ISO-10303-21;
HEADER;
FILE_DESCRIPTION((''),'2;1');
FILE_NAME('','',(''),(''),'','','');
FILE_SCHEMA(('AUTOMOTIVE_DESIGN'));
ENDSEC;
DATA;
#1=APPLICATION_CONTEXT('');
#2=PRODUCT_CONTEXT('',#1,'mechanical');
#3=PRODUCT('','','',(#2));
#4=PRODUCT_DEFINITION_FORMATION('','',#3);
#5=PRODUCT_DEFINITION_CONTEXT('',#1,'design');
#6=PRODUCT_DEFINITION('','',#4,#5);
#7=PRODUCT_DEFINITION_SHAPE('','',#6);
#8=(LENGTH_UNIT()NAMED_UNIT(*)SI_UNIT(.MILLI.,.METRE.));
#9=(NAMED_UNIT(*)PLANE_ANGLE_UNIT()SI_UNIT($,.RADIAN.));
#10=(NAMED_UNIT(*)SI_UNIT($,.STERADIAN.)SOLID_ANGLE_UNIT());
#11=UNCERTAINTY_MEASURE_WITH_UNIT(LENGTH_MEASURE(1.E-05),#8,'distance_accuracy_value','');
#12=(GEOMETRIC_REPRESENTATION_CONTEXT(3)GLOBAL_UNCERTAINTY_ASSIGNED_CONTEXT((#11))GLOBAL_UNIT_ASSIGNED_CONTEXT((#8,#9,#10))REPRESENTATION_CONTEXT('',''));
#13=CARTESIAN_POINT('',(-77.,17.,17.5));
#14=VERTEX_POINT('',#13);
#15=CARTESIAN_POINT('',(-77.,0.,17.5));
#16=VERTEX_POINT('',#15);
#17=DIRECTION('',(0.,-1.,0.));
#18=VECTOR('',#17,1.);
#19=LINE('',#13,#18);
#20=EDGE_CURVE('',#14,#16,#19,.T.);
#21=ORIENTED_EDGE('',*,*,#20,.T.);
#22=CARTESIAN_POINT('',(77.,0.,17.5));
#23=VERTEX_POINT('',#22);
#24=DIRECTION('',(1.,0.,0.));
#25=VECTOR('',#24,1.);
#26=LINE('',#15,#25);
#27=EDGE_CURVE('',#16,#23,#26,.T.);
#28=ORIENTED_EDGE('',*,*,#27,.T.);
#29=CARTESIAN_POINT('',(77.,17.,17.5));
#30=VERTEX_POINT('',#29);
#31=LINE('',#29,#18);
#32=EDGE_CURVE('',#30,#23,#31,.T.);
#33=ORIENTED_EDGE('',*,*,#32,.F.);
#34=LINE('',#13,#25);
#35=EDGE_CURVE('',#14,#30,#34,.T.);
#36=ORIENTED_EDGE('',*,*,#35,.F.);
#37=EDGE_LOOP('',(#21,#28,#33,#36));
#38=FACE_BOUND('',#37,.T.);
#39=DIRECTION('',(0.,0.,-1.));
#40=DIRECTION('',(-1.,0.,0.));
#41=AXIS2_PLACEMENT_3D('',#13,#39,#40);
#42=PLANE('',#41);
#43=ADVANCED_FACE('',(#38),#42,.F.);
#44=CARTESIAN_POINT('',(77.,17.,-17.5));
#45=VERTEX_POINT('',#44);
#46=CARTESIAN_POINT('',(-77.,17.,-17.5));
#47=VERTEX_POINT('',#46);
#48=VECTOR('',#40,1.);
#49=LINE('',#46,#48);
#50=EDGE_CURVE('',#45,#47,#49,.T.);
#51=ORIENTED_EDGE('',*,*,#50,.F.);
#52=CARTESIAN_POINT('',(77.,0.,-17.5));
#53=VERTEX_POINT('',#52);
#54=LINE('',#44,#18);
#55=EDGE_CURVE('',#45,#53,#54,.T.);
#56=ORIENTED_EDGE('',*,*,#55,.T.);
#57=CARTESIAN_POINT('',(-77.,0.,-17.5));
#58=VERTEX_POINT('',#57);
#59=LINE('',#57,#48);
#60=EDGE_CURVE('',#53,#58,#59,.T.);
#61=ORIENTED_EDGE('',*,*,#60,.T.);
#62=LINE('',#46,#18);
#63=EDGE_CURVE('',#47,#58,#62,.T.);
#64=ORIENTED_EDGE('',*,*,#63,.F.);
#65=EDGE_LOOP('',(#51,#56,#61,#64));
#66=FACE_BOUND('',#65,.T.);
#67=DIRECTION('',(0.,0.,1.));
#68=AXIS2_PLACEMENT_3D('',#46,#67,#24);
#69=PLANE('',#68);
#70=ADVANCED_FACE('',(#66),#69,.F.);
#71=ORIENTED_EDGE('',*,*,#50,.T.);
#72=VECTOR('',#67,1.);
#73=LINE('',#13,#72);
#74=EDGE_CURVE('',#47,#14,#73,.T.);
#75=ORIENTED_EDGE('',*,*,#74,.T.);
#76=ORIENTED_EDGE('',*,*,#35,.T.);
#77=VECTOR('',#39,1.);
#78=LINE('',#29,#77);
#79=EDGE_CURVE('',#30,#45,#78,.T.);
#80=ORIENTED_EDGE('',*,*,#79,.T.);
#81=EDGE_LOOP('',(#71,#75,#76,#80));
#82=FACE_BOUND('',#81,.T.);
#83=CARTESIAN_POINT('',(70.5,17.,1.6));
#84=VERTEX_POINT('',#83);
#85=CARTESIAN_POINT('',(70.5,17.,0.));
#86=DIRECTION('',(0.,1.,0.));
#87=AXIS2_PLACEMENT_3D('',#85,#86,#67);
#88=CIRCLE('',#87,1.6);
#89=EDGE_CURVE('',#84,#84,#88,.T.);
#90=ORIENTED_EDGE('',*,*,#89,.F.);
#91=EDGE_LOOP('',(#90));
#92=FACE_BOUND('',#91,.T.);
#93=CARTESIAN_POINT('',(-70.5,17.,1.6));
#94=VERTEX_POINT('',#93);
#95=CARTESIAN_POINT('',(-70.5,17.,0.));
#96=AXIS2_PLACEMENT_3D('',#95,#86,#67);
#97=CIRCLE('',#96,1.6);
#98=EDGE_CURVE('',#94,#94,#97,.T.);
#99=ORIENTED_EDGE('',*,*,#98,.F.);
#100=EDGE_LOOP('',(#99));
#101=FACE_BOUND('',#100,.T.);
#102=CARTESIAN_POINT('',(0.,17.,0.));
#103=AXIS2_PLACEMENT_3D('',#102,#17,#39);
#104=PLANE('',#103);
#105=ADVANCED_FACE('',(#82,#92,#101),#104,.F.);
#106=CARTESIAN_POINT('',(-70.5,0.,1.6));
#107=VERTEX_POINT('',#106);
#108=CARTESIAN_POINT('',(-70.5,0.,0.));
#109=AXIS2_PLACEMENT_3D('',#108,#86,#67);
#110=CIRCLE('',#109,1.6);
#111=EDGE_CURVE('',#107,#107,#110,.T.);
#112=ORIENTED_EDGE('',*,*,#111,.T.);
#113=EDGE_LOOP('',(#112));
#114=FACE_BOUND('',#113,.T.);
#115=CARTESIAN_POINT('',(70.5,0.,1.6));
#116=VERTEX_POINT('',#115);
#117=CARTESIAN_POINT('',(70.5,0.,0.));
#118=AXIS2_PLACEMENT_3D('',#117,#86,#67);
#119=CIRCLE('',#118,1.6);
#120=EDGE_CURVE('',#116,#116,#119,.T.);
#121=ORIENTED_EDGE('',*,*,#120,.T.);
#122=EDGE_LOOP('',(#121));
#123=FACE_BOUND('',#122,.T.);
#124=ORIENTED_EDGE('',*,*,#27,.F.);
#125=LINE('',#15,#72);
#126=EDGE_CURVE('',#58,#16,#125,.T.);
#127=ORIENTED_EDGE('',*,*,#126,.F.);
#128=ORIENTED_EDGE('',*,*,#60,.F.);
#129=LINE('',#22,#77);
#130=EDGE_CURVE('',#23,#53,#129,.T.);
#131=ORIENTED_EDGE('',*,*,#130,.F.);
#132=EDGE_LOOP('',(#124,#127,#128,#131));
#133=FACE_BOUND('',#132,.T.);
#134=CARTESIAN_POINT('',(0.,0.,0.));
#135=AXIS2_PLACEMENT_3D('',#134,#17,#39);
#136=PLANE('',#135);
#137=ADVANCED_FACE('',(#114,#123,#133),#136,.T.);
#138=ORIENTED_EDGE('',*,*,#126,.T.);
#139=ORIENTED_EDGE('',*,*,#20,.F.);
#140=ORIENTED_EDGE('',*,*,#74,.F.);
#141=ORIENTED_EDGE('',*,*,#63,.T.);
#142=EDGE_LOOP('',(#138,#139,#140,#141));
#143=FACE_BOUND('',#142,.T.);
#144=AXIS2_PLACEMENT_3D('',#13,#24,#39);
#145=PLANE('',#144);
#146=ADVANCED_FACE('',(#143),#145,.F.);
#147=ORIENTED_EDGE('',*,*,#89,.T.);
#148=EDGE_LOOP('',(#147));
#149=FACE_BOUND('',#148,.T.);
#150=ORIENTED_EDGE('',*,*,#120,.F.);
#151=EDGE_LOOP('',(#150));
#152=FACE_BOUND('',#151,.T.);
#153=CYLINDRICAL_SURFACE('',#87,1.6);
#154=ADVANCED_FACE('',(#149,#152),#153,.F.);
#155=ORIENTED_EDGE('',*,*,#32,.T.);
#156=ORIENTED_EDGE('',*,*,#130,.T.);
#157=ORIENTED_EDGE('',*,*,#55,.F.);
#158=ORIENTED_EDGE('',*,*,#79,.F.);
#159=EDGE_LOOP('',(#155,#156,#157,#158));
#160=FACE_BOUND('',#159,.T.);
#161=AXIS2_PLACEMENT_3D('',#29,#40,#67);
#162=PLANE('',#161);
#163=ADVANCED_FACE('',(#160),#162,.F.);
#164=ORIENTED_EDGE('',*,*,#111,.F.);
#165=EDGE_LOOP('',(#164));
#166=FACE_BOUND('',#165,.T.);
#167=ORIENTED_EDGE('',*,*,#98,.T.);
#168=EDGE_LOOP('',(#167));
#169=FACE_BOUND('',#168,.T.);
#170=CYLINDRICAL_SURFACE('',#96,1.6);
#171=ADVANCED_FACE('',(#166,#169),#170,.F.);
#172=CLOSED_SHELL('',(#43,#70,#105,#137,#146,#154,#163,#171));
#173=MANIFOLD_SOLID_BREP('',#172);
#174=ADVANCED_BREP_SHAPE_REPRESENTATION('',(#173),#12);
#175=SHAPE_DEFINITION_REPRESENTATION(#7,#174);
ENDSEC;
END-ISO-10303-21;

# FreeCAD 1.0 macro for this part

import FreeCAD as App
import Part
import Sketcher
from FreeCAD import Vector
Q = App.Units.Quantity

doc = App.newDocument("Part")
body = doc.addObject("PartDesign::Body", "Body")

# Sketch on XZ plane
sketch1 = body.newObject("Sketcher::SketchObject", "Sketch")
sketch1.AttachmentSupport = (doc.getObject("XZ_Plane"), [""])
sketch1.MapMode = "FlatFace"
sketch1.addGeometry([
    Part.LineSegment(Vector(-77, -18, 0), Vector(-77, 18, 0)),
    Part.LineSegment(Vector(-77, 18, 0), Vector(77, 18, 0)),
    Part.LineSegment(Vector(77, 18, 0), Vector(77, -18, 0)),
    Part.LineSegment(Vector(77, -18, 0), Vector(-77, -18, 0)),
], False)
sketch1.addConstraint([
    Sketcher.Constraint("Coincident", 0, 2, 1, 1),
    Sketcher.Constraint("Coincident", 1, 2, 2, 1),
    Sketcher.Constraint("Coincident", 2, 2, 3, 1),
    Sketcher.Constraint("Coincident", 3, 2, 0, 1),
    Sketcher.Constraint("Vertical", 0),
    Sketcher.Constraint("Horizontal", 1),
    Sketcher.Constraint("Vertical", 2),
    Sketcher.Constraint("Horizontal", 3),
    Sketcher.Constraint("Symmetric", 0, 2, 2, 2, -1, 1),
    Sketcher.Constraint("DistanceX", 1, 1, 1, 2, Q("154 mm")),
    Sketcher.Constraint("DistanceY", 0, 1, 0, 2, Q("35 mm")),
])
pad1 = body.newObject("PartDesign::Pad", "Pad")
pad1.Profile = sketch1
pad1.Length = 17
pad1.Reversed = True

# Sketch on XZ plane
sketch2 = body.newObject("Sketcher::SketchObject", "Sketch001")
sketch2.AttachmentSupport = (doc.getObject("XZ_Plane"), [""])
sketch2.MapMode = "FlatFace"
sketch2.AttachmentOffset = App.Placement(Vector(0, 0, -17), App.Rotation())
sketch2.addGeometry([
    Part.Circle(Vector(-70.5, 0, 0), Vector(0, 0, 1), 1.6),
    Part.Circle(Vector(70.5, 0, 0), Vector(0, 0, 1), 1.6),
], False)
sketch2.addConstraint([
    Sketcher.Constraint("Equal", 0, 1),
    Sketcher.Constraint("Symmetric", 0, 3, 1, 3, -1, 1),
    Sketcher.Constraint("PointOnObject", 0, 3, -1),
    Sketcher.Constraint("Diameter", 0, Q("3.2 mm")),
    Sketcher.Constraint("DistanceX", 0, 3, 1, 3, Q("141 mm")),
])
doc.recompute()
hole = body.newObject("PartDesign::Hole", "Hole")
hole.Profile = sketch2
hole.ThreadType = "None"
hole.Diameter = 3.2
hole.DepthType = "ThroughAll"
hole.Reversed = True

doc.recompute()
